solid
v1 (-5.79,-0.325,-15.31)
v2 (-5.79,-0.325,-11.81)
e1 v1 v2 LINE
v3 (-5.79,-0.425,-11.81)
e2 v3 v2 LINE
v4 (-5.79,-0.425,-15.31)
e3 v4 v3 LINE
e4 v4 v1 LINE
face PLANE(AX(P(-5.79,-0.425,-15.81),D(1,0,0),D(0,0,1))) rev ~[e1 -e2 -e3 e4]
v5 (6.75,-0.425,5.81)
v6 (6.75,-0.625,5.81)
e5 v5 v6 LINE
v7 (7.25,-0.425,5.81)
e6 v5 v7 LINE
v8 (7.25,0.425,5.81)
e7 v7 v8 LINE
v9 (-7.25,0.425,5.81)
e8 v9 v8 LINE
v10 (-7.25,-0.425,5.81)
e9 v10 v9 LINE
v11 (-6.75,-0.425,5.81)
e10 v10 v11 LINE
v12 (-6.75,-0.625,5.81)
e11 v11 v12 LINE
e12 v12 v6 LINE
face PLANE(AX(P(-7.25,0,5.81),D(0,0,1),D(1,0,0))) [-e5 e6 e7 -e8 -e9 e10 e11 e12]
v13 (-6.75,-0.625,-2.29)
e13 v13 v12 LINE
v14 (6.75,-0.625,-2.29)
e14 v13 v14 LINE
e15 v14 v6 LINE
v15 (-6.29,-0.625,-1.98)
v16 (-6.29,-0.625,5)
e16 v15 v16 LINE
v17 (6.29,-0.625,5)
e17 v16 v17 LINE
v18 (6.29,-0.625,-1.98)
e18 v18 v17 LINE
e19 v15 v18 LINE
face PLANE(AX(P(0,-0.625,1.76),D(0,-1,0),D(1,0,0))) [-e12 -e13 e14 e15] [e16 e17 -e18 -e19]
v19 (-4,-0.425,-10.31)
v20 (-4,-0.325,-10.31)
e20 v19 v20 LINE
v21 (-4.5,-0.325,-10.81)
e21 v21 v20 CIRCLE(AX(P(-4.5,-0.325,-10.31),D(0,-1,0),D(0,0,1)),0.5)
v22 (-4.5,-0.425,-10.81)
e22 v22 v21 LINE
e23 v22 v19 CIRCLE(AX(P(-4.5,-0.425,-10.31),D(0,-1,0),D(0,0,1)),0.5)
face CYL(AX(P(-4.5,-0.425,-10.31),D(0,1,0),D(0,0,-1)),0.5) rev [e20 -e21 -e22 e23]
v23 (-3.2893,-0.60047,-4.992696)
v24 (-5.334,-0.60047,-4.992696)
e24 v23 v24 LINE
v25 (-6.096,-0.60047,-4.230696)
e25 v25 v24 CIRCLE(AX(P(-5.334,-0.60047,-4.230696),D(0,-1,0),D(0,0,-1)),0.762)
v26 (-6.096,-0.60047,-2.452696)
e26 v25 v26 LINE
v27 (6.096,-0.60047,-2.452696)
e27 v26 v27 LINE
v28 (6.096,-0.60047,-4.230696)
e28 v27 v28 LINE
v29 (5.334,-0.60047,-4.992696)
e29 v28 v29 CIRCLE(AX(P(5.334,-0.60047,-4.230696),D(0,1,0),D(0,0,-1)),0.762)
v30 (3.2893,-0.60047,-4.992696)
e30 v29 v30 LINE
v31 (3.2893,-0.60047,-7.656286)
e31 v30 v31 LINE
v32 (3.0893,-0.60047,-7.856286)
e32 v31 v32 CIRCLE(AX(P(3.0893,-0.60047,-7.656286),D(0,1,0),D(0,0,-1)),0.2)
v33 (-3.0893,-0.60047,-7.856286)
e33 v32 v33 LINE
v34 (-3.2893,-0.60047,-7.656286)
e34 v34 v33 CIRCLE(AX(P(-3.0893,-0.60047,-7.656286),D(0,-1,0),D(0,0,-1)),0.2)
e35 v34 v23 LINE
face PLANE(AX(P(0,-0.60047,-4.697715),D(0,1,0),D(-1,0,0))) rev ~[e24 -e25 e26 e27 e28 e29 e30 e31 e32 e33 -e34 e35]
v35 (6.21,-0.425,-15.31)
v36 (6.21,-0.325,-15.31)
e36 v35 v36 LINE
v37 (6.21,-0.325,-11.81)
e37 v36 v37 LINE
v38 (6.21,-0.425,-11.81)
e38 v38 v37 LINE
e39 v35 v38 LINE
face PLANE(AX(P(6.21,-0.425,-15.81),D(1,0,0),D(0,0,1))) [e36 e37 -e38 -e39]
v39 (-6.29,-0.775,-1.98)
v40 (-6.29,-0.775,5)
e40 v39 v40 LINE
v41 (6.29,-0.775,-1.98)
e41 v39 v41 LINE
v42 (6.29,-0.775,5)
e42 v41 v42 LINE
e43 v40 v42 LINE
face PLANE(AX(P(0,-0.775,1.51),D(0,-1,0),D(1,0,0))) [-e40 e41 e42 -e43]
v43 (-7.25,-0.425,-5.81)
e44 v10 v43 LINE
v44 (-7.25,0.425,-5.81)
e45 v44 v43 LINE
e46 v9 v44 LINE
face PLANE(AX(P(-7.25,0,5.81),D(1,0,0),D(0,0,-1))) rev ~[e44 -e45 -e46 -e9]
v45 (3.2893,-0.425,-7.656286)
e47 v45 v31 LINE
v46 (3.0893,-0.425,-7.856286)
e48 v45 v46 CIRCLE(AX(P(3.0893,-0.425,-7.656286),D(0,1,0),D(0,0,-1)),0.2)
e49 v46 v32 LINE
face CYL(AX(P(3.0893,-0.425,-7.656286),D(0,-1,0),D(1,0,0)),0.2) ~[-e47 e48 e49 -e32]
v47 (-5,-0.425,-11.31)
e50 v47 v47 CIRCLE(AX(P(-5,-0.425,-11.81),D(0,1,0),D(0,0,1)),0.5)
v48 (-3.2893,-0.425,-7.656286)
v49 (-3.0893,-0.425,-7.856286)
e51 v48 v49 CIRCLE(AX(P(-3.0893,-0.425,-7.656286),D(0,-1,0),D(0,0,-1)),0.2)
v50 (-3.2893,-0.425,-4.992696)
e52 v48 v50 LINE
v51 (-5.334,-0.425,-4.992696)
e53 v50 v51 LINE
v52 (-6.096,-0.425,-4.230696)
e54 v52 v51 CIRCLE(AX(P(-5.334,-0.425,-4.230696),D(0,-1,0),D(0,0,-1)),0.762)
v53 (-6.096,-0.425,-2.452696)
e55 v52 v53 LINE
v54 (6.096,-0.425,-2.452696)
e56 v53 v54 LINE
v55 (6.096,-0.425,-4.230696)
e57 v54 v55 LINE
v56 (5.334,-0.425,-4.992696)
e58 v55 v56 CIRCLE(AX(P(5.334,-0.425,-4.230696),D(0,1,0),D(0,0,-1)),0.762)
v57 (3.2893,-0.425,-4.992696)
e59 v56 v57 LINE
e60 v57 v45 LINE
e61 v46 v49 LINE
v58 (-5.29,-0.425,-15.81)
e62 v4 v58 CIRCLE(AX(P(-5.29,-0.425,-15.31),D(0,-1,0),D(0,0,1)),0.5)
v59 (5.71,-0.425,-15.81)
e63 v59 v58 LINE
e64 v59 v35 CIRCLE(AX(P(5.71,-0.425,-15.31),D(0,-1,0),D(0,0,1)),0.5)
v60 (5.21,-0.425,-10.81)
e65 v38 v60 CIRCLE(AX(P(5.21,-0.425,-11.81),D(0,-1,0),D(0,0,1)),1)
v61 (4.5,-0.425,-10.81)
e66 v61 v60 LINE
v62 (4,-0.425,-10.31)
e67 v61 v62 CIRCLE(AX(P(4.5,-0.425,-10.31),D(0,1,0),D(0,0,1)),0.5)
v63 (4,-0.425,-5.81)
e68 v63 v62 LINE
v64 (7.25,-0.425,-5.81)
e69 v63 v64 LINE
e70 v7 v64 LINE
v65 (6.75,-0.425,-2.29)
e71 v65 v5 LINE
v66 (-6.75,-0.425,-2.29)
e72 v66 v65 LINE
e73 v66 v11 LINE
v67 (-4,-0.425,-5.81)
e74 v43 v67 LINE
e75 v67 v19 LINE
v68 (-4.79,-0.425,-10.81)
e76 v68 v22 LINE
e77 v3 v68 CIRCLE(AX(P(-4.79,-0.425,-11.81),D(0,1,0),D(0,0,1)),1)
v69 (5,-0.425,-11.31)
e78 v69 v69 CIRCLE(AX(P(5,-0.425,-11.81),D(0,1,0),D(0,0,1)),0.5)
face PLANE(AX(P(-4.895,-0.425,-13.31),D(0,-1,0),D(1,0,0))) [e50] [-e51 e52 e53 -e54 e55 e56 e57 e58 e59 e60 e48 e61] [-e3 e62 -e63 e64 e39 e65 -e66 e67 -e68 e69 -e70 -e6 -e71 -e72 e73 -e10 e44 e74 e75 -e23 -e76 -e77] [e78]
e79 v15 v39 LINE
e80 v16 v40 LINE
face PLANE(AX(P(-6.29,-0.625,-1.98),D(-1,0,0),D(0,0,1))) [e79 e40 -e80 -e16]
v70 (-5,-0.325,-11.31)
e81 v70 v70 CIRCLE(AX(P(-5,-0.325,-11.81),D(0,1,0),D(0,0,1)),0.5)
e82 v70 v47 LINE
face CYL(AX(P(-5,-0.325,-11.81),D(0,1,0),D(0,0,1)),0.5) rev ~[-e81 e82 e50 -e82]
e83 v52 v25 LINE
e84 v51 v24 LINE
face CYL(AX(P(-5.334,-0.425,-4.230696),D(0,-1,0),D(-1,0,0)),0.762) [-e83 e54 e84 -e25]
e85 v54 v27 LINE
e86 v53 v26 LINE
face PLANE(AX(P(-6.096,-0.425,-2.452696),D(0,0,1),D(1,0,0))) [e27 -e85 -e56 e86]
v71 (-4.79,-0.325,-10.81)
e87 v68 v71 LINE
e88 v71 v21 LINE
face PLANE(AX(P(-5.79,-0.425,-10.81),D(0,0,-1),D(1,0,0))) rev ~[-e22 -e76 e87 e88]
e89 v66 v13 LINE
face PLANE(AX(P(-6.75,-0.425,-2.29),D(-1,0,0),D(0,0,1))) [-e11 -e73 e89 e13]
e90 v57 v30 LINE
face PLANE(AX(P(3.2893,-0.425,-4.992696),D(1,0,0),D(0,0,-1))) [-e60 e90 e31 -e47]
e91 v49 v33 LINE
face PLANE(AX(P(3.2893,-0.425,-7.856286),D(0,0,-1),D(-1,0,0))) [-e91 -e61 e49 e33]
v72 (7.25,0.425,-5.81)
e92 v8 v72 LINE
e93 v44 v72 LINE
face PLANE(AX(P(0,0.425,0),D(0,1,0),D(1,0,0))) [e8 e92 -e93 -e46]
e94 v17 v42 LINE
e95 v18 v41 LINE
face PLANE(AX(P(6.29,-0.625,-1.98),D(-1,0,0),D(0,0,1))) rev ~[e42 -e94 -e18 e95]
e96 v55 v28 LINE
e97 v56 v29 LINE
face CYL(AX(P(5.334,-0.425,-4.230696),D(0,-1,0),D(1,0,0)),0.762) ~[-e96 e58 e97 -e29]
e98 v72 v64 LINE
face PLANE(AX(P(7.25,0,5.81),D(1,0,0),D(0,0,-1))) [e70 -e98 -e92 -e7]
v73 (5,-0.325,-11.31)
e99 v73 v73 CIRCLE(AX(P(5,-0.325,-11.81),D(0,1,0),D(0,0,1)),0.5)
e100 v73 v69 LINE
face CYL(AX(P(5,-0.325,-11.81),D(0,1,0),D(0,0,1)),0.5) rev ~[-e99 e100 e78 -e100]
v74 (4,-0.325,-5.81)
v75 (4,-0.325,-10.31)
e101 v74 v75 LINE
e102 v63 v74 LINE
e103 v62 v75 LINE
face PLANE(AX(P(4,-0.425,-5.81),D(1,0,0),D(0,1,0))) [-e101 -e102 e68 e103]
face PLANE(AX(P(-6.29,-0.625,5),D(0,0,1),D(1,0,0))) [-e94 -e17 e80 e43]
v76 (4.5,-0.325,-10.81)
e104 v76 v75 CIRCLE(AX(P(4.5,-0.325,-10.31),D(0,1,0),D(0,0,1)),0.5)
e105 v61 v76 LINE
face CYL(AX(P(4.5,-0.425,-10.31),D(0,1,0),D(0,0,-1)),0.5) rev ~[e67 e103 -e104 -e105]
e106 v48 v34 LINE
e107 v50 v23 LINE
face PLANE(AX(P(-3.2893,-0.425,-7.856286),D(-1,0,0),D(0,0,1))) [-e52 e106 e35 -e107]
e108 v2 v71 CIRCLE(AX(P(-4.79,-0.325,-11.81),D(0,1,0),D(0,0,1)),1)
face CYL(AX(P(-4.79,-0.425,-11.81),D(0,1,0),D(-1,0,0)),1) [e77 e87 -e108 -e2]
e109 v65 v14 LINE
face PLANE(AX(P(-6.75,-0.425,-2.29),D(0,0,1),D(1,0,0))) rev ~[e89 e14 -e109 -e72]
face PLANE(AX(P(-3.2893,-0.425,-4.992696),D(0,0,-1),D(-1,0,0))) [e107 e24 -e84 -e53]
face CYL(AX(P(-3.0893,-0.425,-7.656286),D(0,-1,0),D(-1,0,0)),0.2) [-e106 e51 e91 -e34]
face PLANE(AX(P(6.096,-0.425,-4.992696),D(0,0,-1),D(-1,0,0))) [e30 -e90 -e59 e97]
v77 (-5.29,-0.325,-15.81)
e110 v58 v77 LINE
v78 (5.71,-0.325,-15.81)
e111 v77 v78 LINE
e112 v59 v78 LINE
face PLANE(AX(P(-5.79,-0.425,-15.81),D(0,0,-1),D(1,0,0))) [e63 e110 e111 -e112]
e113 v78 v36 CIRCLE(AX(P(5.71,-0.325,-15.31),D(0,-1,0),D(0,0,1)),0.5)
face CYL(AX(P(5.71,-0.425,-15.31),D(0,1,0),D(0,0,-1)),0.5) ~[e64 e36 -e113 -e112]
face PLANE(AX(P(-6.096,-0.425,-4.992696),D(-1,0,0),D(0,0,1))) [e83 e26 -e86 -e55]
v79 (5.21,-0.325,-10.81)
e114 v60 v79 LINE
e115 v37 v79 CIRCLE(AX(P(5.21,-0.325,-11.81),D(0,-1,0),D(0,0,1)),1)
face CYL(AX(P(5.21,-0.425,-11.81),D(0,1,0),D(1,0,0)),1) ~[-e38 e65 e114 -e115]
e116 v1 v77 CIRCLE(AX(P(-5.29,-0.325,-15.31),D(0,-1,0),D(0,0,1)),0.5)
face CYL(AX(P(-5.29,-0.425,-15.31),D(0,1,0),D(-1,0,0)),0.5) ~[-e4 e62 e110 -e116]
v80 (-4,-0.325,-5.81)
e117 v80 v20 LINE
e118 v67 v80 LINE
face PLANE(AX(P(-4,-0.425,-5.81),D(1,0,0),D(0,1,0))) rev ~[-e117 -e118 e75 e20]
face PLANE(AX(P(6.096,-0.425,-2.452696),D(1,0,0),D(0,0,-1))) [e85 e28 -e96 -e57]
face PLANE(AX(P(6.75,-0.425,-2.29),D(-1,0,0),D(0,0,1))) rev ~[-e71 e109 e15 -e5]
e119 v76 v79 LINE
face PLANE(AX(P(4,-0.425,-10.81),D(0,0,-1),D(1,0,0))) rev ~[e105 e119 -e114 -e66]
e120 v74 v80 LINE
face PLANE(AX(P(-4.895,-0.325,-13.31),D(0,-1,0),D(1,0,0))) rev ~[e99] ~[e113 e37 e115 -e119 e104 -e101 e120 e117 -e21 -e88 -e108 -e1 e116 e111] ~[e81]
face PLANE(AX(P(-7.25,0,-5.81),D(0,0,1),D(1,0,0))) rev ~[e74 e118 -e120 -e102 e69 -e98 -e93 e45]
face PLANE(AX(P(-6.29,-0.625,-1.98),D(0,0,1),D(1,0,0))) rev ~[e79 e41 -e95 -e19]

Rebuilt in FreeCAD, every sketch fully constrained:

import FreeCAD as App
import Part
import Sketcher
from FreeCAD import Vector


def edges_at(feature, points):
    """Names of the edges that pass closest to the given points."""
    edges = feature.Shape.Edges
    near = lambda p: min(range(len(edges)), key=lambda i: edges[i].distToShape(Part.Vertex(*p))[0])
    return sorted({f"Edge{near(p) + 1}" for p in points})


def add_polygon(sketch, points):
    """Adds a closed chain of lines whose ends are joined by coincident constraints."""
    first, n = sketch.GeometryCount, len(points)
    for a, b in zip(points, points[1:] + points[:1]):
        sketch.addGeometry(Part.LineSegment(App.Vector(*a, 0), App.Vector(*b, 0)), False)
    for i in range(n):
        sketch.addConstraint(Sketcher.Constraint("Coincident", first + i, 2, first + (i + 1) % n, 1))

doc = App.newDocument("Part")
body = doc.addObject("PartDesign::Body", "Body")

# Sketch on XZ plane
sketch1 = body.newObject("Sketcher::SketchObject", "Sketch")
sketch1.AttachmentSupport = (doc.getObject("XZ_Plane"), [""])
sketch1.MapMode = "FlatFace"
add_polygon(sketch1, [(-7, -6), (-7, 6), (7, 6), (7, -6)])  # lines 0-3
sketch1.addConstraint([
    Sketcher.Constraint("Vertical", 0),
    Sketcher.Constraint("Horizontal", 1),
    Sketcher.Constraint("Vertical", 2),
    Sketcher.Constraint("Horizontal", 3),
    Sketcher.Constraint("Symmetric", 0, 2, 2, 2, -1, 1),
    Sketcher.Constraint("DistanceX", 1, 1, 1, 2, 14.5),
    Sketcher.Constraint("DistanceY", 0, 1, 0, 2, 11.62),
])
pad1 = body.newObject("PartDesign::Pad", "Pad")
pad1.Profile = sketch1
pad1.Length = 0.85
pad1.Midplane = True

# Sketch on XZ plane
sketch2 = body.newObject("Sketcher::SketchObject", "Sketch001")
sketch2.AttachmentSupport = (doc.getObject("XZ_Plane"), [""])
sketch2.MapMode = "FlatFace"
sketch2.AttachmentOffset = App.Placement(Vector(0, 0, 0.425), App.Rotation())
add_polygon(sketch2, [(-7, 6), (-7, -2), (7, -2), (7, 6)])  # lines 0-3
sketch2.addConstraint([
    Sketcher.Constraint("Vertical", 0),
    Sketcher.Constraint("Horizontal", 1),
    Sketcher.Constraint("Vertical", 2),
    Sketcher.Constraint("Horizontal", 3),
    Sketcher.Constraint("DistanceX", 1, 1, 1, 2, 13.5),
    Sketcher.Constraint("DistanceY", 0, 2, 0, 1, 8.1),
    Sketcher.Constraint("DistanceX", 0, 2, -1, 1, 6.75),
    Sketcher.Constraint("DistanceY", 0, 2, -1, 1, 2.29),
])
pad2 = body.newObject("PartDesign::Pad", "Pad001")
pad2.Profile = sketch2
pad2.Length = 0.2

# Sketch on XZ plane
sketch3 = body.newObject("Sketcher::SketchObject", "Sketch002")
sketch3.AttachmentSupport = (doc.getObject("XZ_Plane"), [""])
sketch3.MapMode = "FlatFace"
sketch3.AttachmentOffset = App.Placement(Vector(0, 0, 0.625), App.Rotation())
add_polygon(sketch3, [(-6, 5), (-6, -2), (6, -2), (6, 5)])  # lines 0-3
sketch3.addConstraint([
    Sketcher.Constraint("Vertical", 0),
    Sketcher.Constraint("Horizontal", 1),
    Sketcher.Constraint("Vertical", 2),
    Sketcher.Constraint("Horizontal", 3),
    Sketcher.Constraint("DistanceY", -1, 1, 2, 2, 5.0),
    Sketcher.Constraint("DistanceX", 1, 1, 1, 2, 12.58),
    Sketcher.Constraint("DistanceY", 0, 2, 0, 1, 6.98),
    Sketcher.Constraint("DistanceX", 0, 2, -1, 1, 6.29),
])
pad3 = body.newObject("PartDesign::Pad", "Pad002")
pad3.Profile = sketch3
pad3.Length = 0.15

# Sketch on XZ plane
sketch4 = body.newObject("Sketcher::SketchObject", "Sketch003")
sketch4.AttachmentSupport = (doc.getObject("XZ_Plane"), [""])
sketch4.MapMode = "FlatFace"
sketch4.AttachmentOffset = App.Placement(Vector(0, 0, 0.425), App.Rotation())
add_polygon(sketch4, [(6.1, -2.5), (-6.1, -2.5), (-6.1, -5), (-3.3, -5), (-3.3, -7.9), (3.3, -7.9), (3.3, -5), (6.1, -5)])  # lines 0-7
sketch4.addConstraint([
    Sketcher.Constraint("Horizontal", 0),
    Sketcher.Constraint("Vertical", 1),
    Sketcher.Constraint("Horizontal", 2),
    Sketcher.Constraint("Vertical", 3),
    Sketcher.Constraint("Horizontal", 4),
    Sketcher.Constraint("Vertical", 5),
    Sketcher.Constraint("Horizontal", 6),
    Sketcher.Constraint("Vertical", 7),
    Sketcher.Constraint("Symmetric", 2, 2, 5, 2, -2),
    Sketcher.Constraint("Equal", 2, 6),
    Sketcher.Constraint("DistanceY", 1, 2, 1, 1, 2.54),
    Sketcher.Constraint("DistanceX", 0, 2, 0, 1, 12.192),
    Sketcher.Constraint("DistanceX", 2, 1, 2, 2, 2.8067),
    Sketcher.Constraint("DistanceY", 3, 2, 3, 1, 2.86359),
    Sketcher.Constraint("DistanceY", 0, 2, -1, 1, 2.452696),
])
pad4 = body.newObject("PartDesign::Pad", "Pad003")
pad4.Profile = sketch4
pad4.Length = 0.17547
doc.recompute()

fillet = body.newObject("PartDesign::Fillet", "Fillet")
fillet.Base = (pad4, edges_at(pad4, [(6.096, -0.513, -4.993), (-6.096, -0.513, -4.993)]))
fillet.Radius = 0.762
doc.recompute()

fillet2 = body.newObject("PartDesign::Fillet", "Fillet001")
fillet2.Base = (fillet, edges_at(fillet, [(-3.289, -0.513, -7.856), (3.289, -0.513, -7.856)]))
fillet2.Radius = 0.2

# Sketch on XY plane
sketch5 = body.newObject("Sketcher::SketchObject", "Sketch004")
sketch5.AttachmentSupport = (doc.getObject("XY_Plane"), [""])
sketch5.MapMode = "FlatFace"
sketch5.AttachmentOffset = App.Placement(Vector(0, 0, -5.81), App.Rotation())
add_polygon(sketch5, [(4, -0.33), (4, -0.42), (-4, -0.42), (-4, -0.33)])  # lines 0-3
sketch5.addConstraint([
    Sketcher.Constraint("Vertical", 0),
    Sketcher.Constraint("Horizontal", 1),
    Sketcher.Constraint("Vertical", 2),
    Sketcher.Constraint("Horizontal", 3),
    Sketcher.Constraint("DistanceX", 1, 2, 1, 1, 8.0),
    Sketcher.Constraint("DistanceY", 0, 2, 0, 1, 0.1),
    Sketcher.Constraint("DistanceX", -1, 1, 0, 2, 4.0),
    Sketcher.Constraint("DistanceY", 0, 2, -1, 1, 0.425),
])
pad5 = body.newObject("PartDesign::Pad", "Pad004")
pad5.Profile = sketch5
pad5.Length = 10
pad5.Reversed = True

# Sketch on XZ plane
sketch6 = body.newObject("Sketcher::SketchObject", "Sketch005")
sketch6.AttachmentSupport = (doc.getObject("XZ_Plane"), [""])
sketch6.MapMode = "FlatFace"
sketch6.AttachmentOffset = App.Placement(Vector(0, 0, 0.425), App.Rotation())
add_polygon(sketch6, [(-5.8, -10.8), (-5.8, -15.8), (-4, -15.8), (-4, -10.8)])  # lines 0-3
add_polygon(sketch6, [(4, -10.8), (4, -15.8), (6.2, -15.8), (6.2, -10.8)])  # lines 4-7
sketch6.addConstraint([
    Sketcher.Constraint("Vertical", 0),
    Sketcher.Constraint("Horizontal", 1),
    Sketcher.Constraint("Vertical", 2),
    Sketcher.Constraint("Horizontal", 3),
    Sketcher.Constraint("Vertical", 4),
    Sketcher.Constraint("Horizontal", 5),
    Sketcher.Constraint("Vertical", 6),
    Sketcher.Constraint("Horizontal", 7),
    Sketcher.Constraint("Symmetric", 1, 2, 4, 2, -2),
    Sketcher.Constraint("Horizontal", 3, 2, 6, 2),
    Sketcher.Constraint("DistanceY", 0, 2, 0, 1, 5.0),
    Sketcher.Constraint("DistanceX", 1, 2, -1, 1, 4.0),
    Sketcher.Constraint("DistanceX", 0, 2, 5, 2, 12.0),
    Sketcher.Constraint("DistanceX", 1, 1, 1, 2, 1.79),
    Sketcher.Constraint("DistanceY", 0, 2, -1, 1, 15.81),
])
pad6 = body.newObject("PartDesign::Pad", "Pad005")
pad6.Profile = sketch6
pad6.Length = 0.1
pad6.Reversed = True

# Sketch on XZ plane
sketch7 = body.newObject("Sketcher::SketchObject", "Sketch006")
sketch7.AttachmentSupport = (doc.getObject("XZ_Plane"), [""])
sketch7.MapMode = "FlatFace"
sketch7.AttachmentOffset = App.Placement(Vector(0, 0, 0.325), App.Rotation())
sketch7.addGeometry([
    Part.Circle(Vector(5, -11.8, 0), Vector(0, 0, 1), 0.5),
    Part.Circle(Vector(-5, -11.8, 0), Vector(0, 0, 1), 0.5),
], False)
sketch7.addConstraint([
    Sketcher.Constraint("Equal", 0, 1),
    Sketcher.Constraint("Symmetric", 0, 3, 1, 3, -2),
    Sketcher.Constraint("Diameter", 0, 1.0),
    Sketcher.Constraint("DistanceX", -1, 1, 0, 3, 5.0),
    Sketcher.Constraint("DistanceY", 0, 3, -1, 1, 11.81),
])
pocket1 = body.newObject("PartDesign::Pocket", "Pocket")
pocket1.Profile = sketch7
pocket1.Length = 0.1
pocket1.Reversed = True
doc.recompute()

fillet3 = body.newObject("PartDesign::Fillet", "Fillet002")
fillet3.Base = (pocket1, edges_at(pocket1, [(-5.79, -0.375, -10.81), (6.21, -0.375, -10.81)]))
fillet3.Radius = 1
doc.recompute()

fillet4 = body.newObject("PartDesign::Fillet", "Fillet003")
fillet4.Base = (fillet3, edges_at(fillet3, [(-5.79, -0.375, -15.81), (6.21, -0.375, -15.81)]))
fillet4.Radius = 0.5
doc.recompute()

fillet5 = body.newObject("PartDesign::Fillet", "Fillet004")
fillet5.Base = (fillet4, edges_at(fillet4, [(-4, -0.375, -10.81), (4, -0.375, -10.81)]))
fillet5.Radius = 0.5

doc.recompute()
